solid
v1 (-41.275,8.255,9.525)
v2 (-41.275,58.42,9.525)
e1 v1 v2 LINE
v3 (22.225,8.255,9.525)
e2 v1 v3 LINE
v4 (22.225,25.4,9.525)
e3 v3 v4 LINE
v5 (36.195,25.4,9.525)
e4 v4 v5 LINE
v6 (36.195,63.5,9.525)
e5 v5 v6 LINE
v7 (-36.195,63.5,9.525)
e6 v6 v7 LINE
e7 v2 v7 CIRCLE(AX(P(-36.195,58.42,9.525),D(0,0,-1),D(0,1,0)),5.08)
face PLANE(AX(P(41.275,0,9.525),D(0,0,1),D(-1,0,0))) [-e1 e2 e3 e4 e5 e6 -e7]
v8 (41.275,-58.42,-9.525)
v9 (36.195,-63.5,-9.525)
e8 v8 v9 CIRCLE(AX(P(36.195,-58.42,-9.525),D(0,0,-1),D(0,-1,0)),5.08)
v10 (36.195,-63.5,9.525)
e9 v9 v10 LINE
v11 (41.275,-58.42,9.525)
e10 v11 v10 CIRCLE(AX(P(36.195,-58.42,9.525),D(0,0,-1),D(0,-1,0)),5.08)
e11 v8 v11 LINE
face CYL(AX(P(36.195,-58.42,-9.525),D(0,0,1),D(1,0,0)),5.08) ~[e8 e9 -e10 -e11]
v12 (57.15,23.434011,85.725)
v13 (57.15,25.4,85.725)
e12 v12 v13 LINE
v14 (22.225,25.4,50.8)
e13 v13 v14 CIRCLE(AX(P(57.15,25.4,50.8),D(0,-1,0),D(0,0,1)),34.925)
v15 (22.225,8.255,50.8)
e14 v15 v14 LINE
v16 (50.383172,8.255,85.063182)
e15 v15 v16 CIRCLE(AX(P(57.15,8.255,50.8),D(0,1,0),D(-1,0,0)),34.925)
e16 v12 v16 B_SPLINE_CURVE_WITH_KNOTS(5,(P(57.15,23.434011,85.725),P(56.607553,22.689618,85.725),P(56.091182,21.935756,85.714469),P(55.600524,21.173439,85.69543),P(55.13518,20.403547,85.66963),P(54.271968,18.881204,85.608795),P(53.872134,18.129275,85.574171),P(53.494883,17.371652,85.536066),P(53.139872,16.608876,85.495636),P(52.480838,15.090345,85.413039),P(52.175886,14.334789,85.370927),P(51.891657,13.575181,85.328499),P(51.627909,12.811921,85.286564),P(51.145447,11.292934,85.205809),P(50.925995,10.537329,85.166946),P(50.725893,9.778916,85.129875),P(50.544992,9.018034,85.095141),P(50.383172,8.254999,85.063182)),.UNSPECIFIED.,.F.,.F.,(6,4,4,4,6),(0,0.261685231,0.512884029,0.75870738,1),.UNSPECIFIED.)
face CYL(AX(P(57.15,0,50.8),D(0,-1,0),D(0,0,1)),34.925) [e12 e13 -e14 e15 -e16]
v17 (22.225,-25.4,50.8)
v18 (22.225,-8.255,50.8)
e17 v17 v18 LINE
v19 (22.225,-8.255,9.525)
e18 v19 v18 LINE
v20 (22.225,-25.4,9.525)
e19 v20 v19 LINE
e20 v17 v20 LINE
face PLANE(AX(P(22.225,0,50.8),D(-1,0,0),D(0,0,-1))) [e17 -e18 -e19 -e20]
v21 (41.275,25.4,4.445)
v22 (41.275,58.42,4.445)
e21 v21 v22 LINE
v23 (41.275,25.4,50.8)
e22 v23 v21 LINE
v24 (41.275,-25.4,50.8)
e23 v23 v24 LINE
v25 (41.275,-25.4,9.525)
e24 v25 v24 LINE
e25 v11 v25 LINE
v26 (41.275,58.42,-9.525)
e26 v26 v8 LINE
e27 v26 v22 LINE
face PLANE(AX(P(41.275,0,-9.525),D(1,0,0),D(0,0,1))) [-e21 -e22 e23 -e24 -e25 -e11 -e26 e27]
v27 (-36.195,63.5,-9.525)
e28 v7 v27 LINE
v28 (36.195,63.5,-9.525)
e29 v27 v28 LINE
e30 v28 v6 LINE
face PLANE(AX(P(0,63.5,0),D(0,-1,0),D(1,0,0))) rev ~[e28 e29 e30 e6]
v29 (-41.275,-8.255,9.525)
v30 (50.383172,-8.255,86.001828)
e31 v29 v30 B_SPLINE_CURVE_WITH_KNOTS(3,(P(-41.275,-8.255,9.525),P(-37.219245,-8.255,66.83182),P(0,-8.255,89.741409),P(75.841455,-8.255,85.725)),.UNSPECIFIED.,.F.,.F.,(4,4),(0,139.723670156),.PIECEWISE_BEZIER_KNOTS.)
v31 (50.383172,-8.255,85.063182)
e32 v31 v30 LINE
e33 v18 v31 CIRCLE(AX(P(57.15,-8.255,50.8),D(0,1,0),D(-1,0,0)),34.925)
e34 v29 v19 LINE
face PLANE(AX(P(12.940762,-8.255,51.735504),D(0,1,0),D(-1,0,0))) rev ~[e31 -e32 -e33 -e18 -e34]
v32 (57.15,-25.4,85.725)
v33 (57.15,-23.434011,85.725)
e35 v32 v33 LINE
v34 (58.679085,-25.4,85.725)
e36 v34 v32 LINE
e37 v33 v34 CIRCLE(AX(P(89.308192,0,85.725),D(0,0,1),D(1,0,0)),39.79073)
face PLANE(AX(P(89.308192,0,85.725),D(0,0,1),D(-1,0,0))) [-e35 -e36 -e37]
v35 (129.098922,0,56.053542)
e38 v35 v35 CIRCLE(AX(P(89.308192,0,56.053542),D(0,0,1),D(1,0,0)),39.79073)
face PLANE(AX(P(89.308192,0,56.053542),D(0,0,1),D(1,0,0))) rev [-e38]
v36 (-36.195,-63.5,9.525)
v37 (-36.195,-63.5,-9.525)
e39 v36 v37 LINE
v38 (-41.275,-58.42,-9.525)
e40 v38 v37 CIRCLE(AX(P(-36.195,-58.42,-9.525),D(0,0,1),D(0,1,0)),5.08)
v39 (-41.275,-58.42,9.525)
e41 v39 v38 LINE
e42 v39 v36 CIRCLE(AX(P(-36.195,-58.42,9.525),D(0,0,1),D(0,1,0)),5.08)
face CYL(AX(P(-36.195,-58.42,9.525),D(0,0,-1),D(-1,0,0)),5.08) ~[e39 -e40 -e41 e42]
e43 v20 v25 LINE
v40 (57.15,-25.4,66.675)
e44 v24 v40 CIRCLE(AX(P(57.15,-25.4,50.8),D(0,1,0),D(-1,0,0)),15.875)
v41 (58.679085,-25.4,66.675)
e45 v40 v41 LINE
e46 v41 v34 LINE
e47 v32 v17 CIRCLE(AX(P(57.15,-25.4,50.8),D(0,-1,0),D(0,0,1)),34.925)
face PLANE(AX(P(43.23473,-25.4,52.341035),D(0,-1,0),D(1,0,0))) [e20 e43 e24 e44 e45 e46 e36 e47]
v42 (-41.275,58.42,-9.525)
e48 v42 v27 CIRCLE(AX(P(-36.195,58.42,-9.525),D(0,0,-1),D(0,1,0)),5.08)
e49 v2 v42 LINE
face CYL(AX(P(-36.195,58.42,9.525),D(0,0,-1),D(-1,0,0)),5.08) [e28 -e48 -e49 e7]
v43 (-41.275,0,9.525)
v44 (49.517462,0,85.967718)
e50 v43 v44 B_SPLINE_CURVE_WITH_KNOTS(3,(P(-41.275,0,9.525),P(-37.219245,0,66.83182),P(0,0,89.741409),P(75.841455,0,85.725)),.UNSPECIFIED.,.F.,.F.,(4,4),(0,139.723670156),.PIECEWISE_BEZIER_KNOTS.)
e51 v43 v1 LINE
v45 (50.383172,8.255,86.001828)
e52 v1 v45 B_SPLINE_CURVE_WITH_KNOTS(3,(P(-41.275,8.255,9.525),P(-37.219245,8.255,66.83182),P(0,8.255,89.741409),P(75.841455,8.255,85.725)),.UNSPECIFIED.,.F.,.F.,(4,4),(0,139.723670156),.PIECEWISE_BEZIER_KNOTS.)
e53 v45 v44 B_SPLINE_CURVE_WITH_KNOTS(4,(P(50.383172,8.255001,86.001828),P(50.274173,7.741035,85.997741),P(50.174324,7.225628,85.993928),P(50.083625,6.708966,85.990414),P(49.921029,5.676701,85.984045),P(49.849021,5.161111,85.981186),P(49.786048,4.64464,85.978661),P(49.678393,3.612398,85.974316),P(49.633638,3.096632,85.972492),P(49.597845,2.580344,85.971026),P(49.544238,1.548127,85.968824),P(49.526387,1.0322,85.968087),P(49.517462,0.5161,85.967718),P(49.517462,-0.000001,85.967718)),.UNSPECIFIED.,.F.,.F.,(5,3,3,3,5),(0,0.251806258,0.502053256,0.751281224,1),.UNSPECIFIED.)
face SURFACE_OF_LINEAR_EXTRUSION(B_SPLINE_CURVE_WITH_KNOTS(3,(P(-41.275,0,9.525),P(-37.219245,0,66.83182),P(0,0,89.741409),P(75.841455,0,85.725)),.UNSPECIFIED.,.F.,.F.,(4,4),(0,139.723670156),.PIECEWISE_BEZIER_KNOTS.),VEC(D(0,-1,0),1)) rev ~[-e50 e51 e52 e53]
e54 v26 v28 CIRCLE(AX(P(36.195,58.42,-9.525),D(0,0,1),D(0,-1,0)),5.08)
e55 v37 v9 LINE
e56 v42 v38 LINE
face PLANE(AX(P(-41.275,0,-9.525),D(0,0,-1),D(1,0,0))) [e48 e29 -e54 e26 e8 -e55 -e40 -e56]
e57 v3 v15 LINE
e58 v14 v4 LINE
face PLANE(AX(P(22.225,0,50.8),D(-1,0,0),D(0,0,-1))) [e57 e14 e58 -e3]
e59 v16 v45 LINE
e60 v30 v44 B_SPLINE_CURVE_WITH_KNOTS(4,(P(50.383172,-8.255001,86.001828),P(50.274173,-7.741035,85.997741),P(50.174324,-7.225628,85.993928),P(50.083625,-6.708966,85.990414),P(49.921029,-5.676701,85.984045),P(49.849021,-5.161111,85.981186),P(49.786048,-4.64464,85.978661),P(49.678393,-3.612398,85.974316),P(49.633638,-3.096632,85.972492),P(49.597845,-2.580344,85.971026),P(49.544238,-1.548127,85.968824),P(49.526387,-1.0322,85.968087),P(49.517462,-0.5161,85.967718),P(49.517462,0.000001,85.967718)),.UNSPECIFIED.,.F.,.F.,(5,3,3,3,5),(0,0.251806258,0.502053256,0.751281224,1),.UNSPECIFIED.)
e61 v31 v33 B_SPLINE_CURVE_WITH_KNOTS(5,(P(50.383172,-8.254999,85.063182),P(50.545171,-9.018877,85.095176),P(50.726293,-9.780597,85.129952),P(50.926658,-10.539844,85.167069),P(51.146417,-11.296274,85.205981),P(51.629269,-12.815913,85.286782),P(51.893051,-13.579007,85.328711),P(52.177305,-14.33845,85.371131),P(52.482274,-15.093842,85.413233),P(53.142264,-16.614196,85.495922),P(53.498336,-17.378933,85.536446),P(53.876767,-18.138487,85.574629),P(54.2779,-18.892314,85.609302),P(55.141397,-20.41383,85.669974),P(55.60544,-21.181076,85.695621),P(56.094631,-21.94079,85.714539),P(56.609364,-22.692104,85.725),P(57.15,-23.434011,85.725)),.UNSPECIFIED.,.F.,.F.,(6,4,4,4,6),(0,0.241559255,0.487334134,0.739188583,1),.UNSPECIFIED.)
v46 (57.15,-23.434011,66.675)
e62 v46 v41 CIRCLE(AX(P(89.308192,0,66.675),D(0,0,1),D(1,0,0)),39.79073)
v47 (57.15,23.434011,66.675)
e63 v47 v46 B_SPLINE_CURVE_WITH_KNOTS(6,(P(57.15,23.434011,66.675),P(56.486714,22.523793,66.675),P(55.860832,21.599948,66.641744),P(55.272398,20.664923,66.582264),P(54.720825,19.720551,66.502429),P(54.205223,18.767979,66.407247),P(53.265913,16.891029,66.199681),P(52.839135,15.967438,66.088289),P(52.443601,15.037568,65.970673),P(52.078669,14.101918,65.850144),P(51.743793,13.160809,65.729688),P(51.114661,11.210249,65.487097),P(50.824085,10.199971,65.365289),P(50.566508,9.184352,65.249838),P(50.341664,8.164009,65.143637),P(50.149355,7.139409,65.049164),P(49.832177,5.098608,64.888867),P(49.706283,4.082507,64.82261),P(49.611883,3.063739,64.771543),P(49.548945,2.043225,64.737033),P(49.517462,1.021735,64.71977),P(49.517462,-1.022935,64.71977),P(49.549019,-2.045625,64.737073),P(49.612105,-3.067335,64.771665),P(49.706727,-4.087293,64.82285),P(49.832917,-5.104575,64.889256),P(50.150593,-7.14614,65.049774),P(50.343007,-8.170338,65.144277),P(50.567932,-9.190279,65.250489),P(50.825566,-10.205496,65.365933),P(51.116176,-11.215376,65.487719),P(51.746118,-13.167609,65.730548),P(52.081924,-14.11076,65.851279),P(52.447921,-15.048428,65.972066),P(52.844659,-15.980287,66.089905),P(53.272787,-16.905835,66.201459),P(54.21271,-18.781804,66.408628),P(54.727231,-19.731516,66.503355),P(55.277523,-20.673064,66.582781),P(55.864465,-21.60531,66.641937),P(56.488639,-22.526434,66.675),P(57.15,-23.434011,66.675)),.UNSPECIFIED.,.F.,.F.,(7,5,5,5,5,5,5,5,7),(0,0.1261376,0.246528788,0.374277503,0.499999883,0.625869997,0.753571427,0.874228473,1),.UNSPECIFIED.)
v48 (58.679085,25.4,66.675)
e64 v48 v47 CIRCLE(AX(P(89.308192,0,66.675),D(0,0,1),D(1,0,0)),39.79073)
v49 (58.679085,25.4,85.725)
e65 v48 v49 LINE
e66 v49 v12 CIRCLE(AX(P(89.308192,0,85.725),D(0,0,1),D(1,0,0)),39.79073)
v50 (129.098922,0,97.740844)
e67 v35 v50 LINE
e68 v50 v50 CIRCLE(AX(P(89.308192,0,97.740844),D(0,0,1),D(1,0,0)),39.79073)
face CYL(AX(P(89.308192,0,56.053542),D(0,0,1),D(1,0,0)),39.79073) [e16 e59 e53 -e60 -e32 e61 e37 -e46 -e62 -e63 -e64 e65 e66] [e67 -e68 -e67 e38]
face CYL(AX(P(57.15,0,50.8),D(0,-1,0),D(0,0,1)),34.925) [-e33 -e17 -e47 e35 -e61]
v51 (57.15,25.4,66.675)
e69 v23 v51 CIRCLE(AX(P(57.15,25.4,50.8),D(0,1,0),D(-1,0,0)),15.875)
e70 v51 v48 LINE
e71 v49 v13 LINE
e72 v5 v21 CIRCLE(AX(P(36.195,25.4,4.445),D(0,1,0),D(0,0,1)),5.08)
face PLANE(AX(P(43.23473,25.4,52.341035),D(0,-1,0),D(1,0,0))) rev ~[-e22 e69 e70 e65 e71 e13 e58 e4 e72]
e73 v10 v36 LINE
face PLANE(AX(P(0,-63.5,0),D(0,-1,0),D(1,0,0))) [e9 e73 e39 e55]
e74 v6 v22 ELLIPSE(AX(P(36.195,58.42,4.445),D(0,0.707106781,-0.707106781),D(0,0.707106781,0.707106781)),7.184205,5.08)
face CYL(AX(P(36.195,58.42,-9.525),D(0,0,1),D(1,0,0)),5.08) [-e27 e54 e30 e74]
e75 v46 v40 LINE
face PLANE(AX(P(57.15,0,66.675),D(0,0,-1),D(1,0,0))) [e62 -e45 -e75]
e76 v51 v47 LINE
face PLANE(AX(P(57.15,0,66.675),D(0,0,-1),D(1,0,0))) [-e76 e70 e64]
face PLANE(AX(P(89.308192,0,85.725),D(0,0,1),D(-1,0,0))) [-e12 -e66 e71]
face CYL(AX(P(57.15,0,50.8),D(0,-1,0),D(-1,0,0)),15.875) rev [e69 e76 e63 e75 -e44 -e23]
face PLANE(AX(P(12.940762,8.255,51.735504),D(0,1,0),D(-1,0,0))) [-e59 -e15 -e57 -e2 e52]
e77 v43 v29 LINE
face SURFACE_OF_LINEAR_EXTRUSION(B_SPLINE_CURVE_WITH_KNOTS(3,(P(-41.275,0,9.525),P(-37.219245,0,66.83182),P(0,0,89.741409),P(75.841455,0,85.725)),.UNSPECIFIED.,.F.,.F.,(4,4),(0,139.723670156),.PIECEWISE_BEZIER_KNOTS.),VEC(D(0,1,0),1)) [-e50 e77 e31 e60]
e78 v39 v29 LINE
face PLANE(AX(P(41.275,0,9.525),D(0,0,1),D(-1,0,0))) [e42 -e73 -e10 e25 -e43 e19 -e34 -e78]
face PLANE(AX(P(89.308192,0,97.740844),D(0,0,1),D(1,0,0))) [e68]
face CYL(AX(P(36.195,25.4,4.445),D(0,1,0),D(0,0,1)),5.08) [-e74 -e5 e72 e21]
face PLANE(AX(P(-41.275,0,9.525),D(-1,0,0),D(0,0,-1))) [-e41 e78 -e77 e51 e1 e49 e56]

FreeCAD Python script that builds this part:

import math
import FreeCAD as App
import Part
import Sketcher
from FreeCAD import Vector
Q = App.Units.Quantity


def edges_at(feature, points):
    """Names of the edges that pass closest to the given points."""
    edges = feature.Shape.Edges
    near = lambda p: min(range(len(edges)), key=lambda i: edges[i].distToShape(Part.Vertex(*p))[0])
    return sorted({f"Edge{near(p) + 1}" for p in points})


def add_polygon(sketch, points):
    """Adds a closed chain of lines whose ends are joined by coincident constraints."""
    first, n = sketch.GeometryCount, len(points)
    for a, b in zip(points, points[1:] + points[:1]):
        sketch.addGeometry(Part.LineSegment(App.Vector(*a, 0), App.Vector(*b, 0)), False)
    for i in range(n):
        sketch.addConstraint(Sketcher.Constraint("Coincident", first + i, 2, first + (i + 1) % n, 1))

doc = App.newDocument("Part")
body = doc.addObject("PartDesign::Body", "Body")

sketch1 = doc.addObject("Sketcher::SketchObject", "Sketch")
body.addObject(sketch1)
sketch1.AttachmentSupport = (doc.XZ_Plane, [""])
sketch1.MapMode = "FlatFace"
add_polygon(sketch1, [(-41, 10), (-41, -10), (41, -10), (41, 10)])
sketch1.addConstraint(Sketcher.Constraint("Vertical", 0))
sketch1.addConstraint(Sketcher.Constraint("Horizontal", 1))
sketch1.addConstraint(Sketcher.Constraint("Vertical", 2))
sketch1.addConstraint(Sketcher.Constraint("Horizontal", 3))
sketch1.addConstraint(Sketcher.Constraint("Symmetric", 0, 2, 2, 2, -1, 1))
sketch1.addConstraint(Sketcher.Constraint("DistanceX", 1, 1, 1, 2, Q("3.25 in")))
sketch1.addConstraint(Sketcher.Constraint("DistanceY", 0, 2, 0, 1, Q("0.75 in")))
pad1 = doc.addObject("PartDesign::Pad", "Pad")
body.addObject(pad1)
pad1.Profile = sketch1
pad1.Length = Q("5 in")
pad1.Midplane = True

sketch2 = doc.addObject("Sketcher::SketchObject", "Sketch001")
body.addObject(sketch2)
sketch2.AttachmentSupport = (doc.XZ_Plane, [""])
sketch2.MapMode = "FlatFace"
sketch2.addGeometry(Part.LineSegment(Vector(22, 10, 0), Vector(41, 10, 0)), False)
sketch2.addGeometry(Part.LineSegment(Vector(41, 10, 0), Vector(41, 51, 0)), False)
sketch2.addGeometry(Part.ArcOfCircle(Part.Circle(Vector(57, 51, 0), Vector(0, 0, 1), 16), math.radians(90), math.radians(180)), False)
sketch2.addGeometry(Part.LineSegment(Vector(57, 67, 0), Vector(89, 67, 0)), False)
sketch2.addGeometry(Part.LineSegment(Vector(89, 67, 0), Vector(89, 86, 0)), False)
sketch2.addGeometry(Part.LineSegment(Vector(89, 86, 0), Vector(57, 86, 0)), False)
sketch2.addGeometry(Part.ArcOfCircle(Part.Circle(Vector(57, 51, 0), Vector(0, 0, 1), 35), math.radians(90), math.radians(180)), False)
sketch2.addGeometry(Part.LineSegment(Vector(22, 51, 0), Vector(22, 10, 0)), False)
sketch2.addConstraint(Sketcher.Constraint("Coincident", 0, 2, 1, 1))
sketch2.addConstraint(Sketcher.Constraint("Tangent", 1, 2, 2, 2))
sketch2.addConstraint(Sketcher.Constraint("Tangent", 2, 1, 3, 1))
sketch2.addConstraint(Sketcher.Constraint("Coincident", 3, 2, 4, 1))
sketch2.addConstraint(Sketcher.Constraint("Coincident", 4, 2, 5, 1))
sketch2.addConstraint(Sketcher.Constraint("Tangent", 5, 2, 6, 1))
sketch2.addConstraint(Sketcher.Constraint("Tangent", 6, 2, 7, 1))
sketch2.addConstraint(Sketcher.Constraint("Coincident", 7, 2, 0, 1))
sketch2.addConstraint(Sketcher.Constraint("Horizontal", 0))
sketch2.addConstraint(Sketcher.Constraint("Vertical", 1))
sketch2.addConstraint(Sketcher.Constraint("Horizontal", 3))
sketch2.addConstraint(Sketcher.Constraint("Vertical", 4))
sketch2.addConstraint(Sketcher.Constraint("Horizontal", 5))
sketch2.addConstraint(Sketcher.Constraint("Vertical", 7))
sketch2.addConstraint(Sketcher.Constraint("Coincident", 6, 3, 2, 3))
sketch2.addConstraint(Sketcher.Constraint("DistanceY", -1, 1, 2, 3, Q("2 in")))
sketch2.addConstraint(Sketcher.Constraint("Radius", 2, Q("0.625 in")))
sketch2.addConstraint(Sketcher.Constraint("Radius", 6, Q("1.375 in")))
sketch2.addConstraint(Sketcher.Constraint("DistanceY", 1, 1, 1, 2, Q("1.625 in")))
sketch2.addConstraint(Sketcher.Constraint("DistanceX", -1, 1, 2, 3, Q("2.25 in")))
sketch2.addConstraint(Sketcher.Constraint("DistanceX", 3, 1, 3, 2, Q("32.158192 mm")))
pad2 = doc.addObject("PartDesign::Pad", "Pad001")
body.addObject(pad2)
pad2.Profile = sketch2
pad2.Length = Q("2 in")
pad2.Midplane = True

sketch3 = doc.addObject("Sketcher::SketchObject", "Sketch002")
body.addObject(sketch3)
sketch3.AttachmentSupport = (doc.XZ_Plane, [""])
sketch3.MapMode = "FlatFace"
sketch3.addGeometry(Part.BSplineCurve([Vector(-41.275, 9.525, 0), Vector(-37.219245, 66.83182, 0), Vector(0, 89.741409, 0), Vector(75.841455, 85.725, 0)], [4, 4], [0, 139.723670156], False, 3, [1, 1, 1, 1], False), False)
sketch3.addGeometry(Part.LineSegment(Vector(-41.275, 9.525, 0), Vector(22.225, 9.525, 0)), False)
sketch3.addGeometry(Part.LineSegment(Vector(22.225, 9.525, 0), Vector(22.225, 50.8, 0)), False)
sketch3.addGeometry(Part.ArcOfCircle(Part.Circle(Vector(57.15, 50.8, 0), Vector(0, 0, 1), 34.925), math.radians(90), math.radians(180)), False)
sketch3.addGeometry(Part.LineSegment(Vector(57.15, 85.725, 0), Vector(75.841455, 85.725, 0)), False)
sketch3.addConstraint(Sketcher.Constraint("Block", 0))
sketch3.addConstraint(Sketcher.Constraint("Coincident", 0, 1, 1, 1))
sketch3.addConstraint(Sketcher.Constraint("Coincident", 1, 2, 2, 1))
sketch3.addConstraint(Sketcher.Constraint("Tangent", 2, 2, 3, 2))
sketch3.addConstraint(Sketcher.Constraint("Tangent", 3, 1, 4, 1))
sketch3.addConstraint(Sketcher.Constraint("Coincident", 4, 2, 0, 2))
sketch3.addConstraint(Sketcher.Constraint("Horizontal", 1))
sketch3.addConstraint(Sketcher.Constraint("Vertical", 2))
sketch3.addConstraint(Sketcher.Constraint("Horizontal", 4))
sketch3.addConstraint(Sketcher.Constraint("DistanceX", 1, 1, 1, 2, Q("2.5 in")))
sketch3.addConstraint(Sketcher.Constraint("DistanceY", -1, 1, 3, 3, Q("2 in")))
pad3 = doc.addObject("PartDesign::Pad", "Pad002")
body.addObject(pad3)
pad3.Profile = sketch3
pad3.Length = Q("0.65 in")
pad3.Midplane = True

sketch4 = doc.addObject("Sketcher::SketchObject", "Sketch003")
body.addObject(sketch4)
sketch4.AttachmentSupport = (doc.XZ_Plane, [""])
sketch4.MapMode = "FlatFace"
add_polygon(sketch4, [(89, 98), (89, 56), (129, 56), (129, 98)])
sketch4.addGeometry(Part.LineSegment(Vector(89, 56, 0), Vector(89, 98, 0)), True)
sketch4.addConstraint(Sketcher.Constraint("Vertical", 0))
sketch4.addConstraint(Sketcher.Constraint("Horizontal", 1))
sketch4.addConstraint(Sketcher.Constraint("Vertical", 2))
sketch4.addConstraint(Sketcher.Constraint("Horizontal", 3))
sketch4.addConstraint(Sketcher.Constraint("Vertical", 4))
sketch4.addConstraint(Sketcher.Constraint("Coincident", 4, 1, 0, 2))
sketch4.addConstraint(Sketcher.Constraint("Horizontal", 2, 2, 4, 2))
sketch4.addConstraint(Sketcher.Constraint("DistanceX", 1, 1, 1, 2, Q("39.79073 mm")))
sketch4.addConstraint(Sketcher.Constraint("DistanceY", 0, 2, 0, 1, Q("41.687302 mm")))
sketch4.addConstraint(Sketcher.Constraint("DistanceX", -1, 1, 0, 2, Q("89.308192 mm")))
sketch4.addConstraint(Sketcher.Constraint("DistanceY", -1, 1, 0, 2, Q("56.053542 mm")))
revolution = doc.addObject("PartDesign::Revolution", "Revolution")
body.addObject(revolution)
revolution.Profile = sketch4
revolution.ReferenceAxis = (sketch4, ["Axis0"])
revolution.Angle = 360
doc.recompute()

fillet = doc.addObject("PartDesign::Fillet", "Fillet")
body.addObject(fillet)
fillet.Base = (revolution, edges_at(revolution, [
    (41.275, 44.45, 9.525),
    (-41.275, 63.5, 0),
    (-41.275, -63.5, 0),
    (41.275, 63.5, 0),
    (41.275, -63.5, 0),
]))
fillet.Radius = Q("0.2 in")

doc.recompute()
